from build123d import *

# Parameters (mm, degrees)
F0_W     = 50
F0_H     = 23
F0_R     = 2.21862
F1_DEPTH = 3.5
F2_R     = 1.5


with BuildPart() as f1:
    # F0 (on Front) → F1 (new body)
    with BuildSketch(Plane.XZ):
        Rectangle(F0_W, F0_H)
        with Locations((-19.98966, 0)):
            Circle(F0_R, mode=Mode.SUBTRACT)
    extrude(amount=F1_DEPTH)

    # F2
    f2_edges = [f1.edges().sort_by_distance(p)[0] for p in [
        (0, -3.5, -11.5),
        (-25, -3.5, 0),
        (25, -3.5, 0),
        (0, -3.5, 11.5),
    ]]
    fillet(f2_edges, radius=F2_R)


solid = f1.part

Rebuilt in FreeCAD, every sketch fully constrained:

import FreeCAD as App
import Part
import Sketcher
from FreeCAD import Vector


def edges_at(feature, points):
    """Names of the edges that pass closest to the given points."""
    edges = feature.Shape.Edges
    near = lambda p: min(range(len(edges)), key=lambda i: edges[i].distToShape(Part.Vertex(*p))[0])
    return sorted({f"Edge{near(p) + 1}" for p in points})

doc = App.newDocument("Part")
body = doc.addObject("PartDesign::Body", "Body")

# Sketch on XZ plane
sketch1 = body.newObject("Sketcher::SketchObject", "Sketch")
sketch1.AttachmentSupport = (doc.getObject("XZ_Plane"), [""])
sketch1.MapMode = "FlatFace"
sketch1.addGeometry([
    Part.LineSegment(Vector(-25, 11.5, 0), Vector(-25, -11.5, 0)),  # 0
    Part.LineSegment(Vector(-25, -11.5, 0), Vector(25, -11.5, 0)),  # 1
    Part.LineSegment(Vector(25, -11.5, 0), Vector(25, 11.5, 0)),  # 2
    Part.LineSegment(Vector(25, 11.5, 0), Vector(-25, 11.5, 0)),  # 3
    Part.Circle(Vector(-19.98966, 0, 0), Vector(0, 0, 1), 2.21862),  # 4
], False)
sketch1.addConstraint([
    Sketcher.Constraint("Coincident", 0, 2, 1, 1),
    Sketcher.Constraint("Coincident", 1, 2, 2, 1),
    Sketcher.Constraint("Coincident", 2, 2, 3, 1),
    Sketcher.Constraint("Coincident", 3, 2, 0, 1),
    Sketcher.Constraint("Vertical", 0),
    Sketcher.Constraint("Horizontal", 1),
    Sketcher.Constraint("Vertical", 2),
    Sketcher.Constraint("Horizontal", 3),
    Sketcher.Constraint("Symmetric", 0, 2, 2, 2, -1, 1),
    Sketcher.Constraint("PointOnObject", 4, 3, -1),
    Sketcher.Constraint("DistanceX", 1, 1, 1, 2, 50.0),
    Sketcher.Constraint("DistanceY", 0, 2, 0, 1, 23.0),
    Sketcher.Constraint("Diameter", 4, 4.43724),
    Sketcher.Constraint("DistanceX", 4, 3, -1, 1, 19.98966),
])
pad1 = body.newObject("PartDesign::Pad", "Pad")
pad1.Profile = sketch1
pad1.Length = 3.5
doc.recompute()

fillet = body.newObject("PartDesign::Fillet", "Fillet")
fillet.Base = (pad1, edges_at(pad1, [
    (0, -3.5, -11.5),
    (-25, -3.5, 0),
    (25, -3.5, 0),
    (0, -3.5, 11.5),
]))
fillet.Radius = 1.5

doc.recompute()
